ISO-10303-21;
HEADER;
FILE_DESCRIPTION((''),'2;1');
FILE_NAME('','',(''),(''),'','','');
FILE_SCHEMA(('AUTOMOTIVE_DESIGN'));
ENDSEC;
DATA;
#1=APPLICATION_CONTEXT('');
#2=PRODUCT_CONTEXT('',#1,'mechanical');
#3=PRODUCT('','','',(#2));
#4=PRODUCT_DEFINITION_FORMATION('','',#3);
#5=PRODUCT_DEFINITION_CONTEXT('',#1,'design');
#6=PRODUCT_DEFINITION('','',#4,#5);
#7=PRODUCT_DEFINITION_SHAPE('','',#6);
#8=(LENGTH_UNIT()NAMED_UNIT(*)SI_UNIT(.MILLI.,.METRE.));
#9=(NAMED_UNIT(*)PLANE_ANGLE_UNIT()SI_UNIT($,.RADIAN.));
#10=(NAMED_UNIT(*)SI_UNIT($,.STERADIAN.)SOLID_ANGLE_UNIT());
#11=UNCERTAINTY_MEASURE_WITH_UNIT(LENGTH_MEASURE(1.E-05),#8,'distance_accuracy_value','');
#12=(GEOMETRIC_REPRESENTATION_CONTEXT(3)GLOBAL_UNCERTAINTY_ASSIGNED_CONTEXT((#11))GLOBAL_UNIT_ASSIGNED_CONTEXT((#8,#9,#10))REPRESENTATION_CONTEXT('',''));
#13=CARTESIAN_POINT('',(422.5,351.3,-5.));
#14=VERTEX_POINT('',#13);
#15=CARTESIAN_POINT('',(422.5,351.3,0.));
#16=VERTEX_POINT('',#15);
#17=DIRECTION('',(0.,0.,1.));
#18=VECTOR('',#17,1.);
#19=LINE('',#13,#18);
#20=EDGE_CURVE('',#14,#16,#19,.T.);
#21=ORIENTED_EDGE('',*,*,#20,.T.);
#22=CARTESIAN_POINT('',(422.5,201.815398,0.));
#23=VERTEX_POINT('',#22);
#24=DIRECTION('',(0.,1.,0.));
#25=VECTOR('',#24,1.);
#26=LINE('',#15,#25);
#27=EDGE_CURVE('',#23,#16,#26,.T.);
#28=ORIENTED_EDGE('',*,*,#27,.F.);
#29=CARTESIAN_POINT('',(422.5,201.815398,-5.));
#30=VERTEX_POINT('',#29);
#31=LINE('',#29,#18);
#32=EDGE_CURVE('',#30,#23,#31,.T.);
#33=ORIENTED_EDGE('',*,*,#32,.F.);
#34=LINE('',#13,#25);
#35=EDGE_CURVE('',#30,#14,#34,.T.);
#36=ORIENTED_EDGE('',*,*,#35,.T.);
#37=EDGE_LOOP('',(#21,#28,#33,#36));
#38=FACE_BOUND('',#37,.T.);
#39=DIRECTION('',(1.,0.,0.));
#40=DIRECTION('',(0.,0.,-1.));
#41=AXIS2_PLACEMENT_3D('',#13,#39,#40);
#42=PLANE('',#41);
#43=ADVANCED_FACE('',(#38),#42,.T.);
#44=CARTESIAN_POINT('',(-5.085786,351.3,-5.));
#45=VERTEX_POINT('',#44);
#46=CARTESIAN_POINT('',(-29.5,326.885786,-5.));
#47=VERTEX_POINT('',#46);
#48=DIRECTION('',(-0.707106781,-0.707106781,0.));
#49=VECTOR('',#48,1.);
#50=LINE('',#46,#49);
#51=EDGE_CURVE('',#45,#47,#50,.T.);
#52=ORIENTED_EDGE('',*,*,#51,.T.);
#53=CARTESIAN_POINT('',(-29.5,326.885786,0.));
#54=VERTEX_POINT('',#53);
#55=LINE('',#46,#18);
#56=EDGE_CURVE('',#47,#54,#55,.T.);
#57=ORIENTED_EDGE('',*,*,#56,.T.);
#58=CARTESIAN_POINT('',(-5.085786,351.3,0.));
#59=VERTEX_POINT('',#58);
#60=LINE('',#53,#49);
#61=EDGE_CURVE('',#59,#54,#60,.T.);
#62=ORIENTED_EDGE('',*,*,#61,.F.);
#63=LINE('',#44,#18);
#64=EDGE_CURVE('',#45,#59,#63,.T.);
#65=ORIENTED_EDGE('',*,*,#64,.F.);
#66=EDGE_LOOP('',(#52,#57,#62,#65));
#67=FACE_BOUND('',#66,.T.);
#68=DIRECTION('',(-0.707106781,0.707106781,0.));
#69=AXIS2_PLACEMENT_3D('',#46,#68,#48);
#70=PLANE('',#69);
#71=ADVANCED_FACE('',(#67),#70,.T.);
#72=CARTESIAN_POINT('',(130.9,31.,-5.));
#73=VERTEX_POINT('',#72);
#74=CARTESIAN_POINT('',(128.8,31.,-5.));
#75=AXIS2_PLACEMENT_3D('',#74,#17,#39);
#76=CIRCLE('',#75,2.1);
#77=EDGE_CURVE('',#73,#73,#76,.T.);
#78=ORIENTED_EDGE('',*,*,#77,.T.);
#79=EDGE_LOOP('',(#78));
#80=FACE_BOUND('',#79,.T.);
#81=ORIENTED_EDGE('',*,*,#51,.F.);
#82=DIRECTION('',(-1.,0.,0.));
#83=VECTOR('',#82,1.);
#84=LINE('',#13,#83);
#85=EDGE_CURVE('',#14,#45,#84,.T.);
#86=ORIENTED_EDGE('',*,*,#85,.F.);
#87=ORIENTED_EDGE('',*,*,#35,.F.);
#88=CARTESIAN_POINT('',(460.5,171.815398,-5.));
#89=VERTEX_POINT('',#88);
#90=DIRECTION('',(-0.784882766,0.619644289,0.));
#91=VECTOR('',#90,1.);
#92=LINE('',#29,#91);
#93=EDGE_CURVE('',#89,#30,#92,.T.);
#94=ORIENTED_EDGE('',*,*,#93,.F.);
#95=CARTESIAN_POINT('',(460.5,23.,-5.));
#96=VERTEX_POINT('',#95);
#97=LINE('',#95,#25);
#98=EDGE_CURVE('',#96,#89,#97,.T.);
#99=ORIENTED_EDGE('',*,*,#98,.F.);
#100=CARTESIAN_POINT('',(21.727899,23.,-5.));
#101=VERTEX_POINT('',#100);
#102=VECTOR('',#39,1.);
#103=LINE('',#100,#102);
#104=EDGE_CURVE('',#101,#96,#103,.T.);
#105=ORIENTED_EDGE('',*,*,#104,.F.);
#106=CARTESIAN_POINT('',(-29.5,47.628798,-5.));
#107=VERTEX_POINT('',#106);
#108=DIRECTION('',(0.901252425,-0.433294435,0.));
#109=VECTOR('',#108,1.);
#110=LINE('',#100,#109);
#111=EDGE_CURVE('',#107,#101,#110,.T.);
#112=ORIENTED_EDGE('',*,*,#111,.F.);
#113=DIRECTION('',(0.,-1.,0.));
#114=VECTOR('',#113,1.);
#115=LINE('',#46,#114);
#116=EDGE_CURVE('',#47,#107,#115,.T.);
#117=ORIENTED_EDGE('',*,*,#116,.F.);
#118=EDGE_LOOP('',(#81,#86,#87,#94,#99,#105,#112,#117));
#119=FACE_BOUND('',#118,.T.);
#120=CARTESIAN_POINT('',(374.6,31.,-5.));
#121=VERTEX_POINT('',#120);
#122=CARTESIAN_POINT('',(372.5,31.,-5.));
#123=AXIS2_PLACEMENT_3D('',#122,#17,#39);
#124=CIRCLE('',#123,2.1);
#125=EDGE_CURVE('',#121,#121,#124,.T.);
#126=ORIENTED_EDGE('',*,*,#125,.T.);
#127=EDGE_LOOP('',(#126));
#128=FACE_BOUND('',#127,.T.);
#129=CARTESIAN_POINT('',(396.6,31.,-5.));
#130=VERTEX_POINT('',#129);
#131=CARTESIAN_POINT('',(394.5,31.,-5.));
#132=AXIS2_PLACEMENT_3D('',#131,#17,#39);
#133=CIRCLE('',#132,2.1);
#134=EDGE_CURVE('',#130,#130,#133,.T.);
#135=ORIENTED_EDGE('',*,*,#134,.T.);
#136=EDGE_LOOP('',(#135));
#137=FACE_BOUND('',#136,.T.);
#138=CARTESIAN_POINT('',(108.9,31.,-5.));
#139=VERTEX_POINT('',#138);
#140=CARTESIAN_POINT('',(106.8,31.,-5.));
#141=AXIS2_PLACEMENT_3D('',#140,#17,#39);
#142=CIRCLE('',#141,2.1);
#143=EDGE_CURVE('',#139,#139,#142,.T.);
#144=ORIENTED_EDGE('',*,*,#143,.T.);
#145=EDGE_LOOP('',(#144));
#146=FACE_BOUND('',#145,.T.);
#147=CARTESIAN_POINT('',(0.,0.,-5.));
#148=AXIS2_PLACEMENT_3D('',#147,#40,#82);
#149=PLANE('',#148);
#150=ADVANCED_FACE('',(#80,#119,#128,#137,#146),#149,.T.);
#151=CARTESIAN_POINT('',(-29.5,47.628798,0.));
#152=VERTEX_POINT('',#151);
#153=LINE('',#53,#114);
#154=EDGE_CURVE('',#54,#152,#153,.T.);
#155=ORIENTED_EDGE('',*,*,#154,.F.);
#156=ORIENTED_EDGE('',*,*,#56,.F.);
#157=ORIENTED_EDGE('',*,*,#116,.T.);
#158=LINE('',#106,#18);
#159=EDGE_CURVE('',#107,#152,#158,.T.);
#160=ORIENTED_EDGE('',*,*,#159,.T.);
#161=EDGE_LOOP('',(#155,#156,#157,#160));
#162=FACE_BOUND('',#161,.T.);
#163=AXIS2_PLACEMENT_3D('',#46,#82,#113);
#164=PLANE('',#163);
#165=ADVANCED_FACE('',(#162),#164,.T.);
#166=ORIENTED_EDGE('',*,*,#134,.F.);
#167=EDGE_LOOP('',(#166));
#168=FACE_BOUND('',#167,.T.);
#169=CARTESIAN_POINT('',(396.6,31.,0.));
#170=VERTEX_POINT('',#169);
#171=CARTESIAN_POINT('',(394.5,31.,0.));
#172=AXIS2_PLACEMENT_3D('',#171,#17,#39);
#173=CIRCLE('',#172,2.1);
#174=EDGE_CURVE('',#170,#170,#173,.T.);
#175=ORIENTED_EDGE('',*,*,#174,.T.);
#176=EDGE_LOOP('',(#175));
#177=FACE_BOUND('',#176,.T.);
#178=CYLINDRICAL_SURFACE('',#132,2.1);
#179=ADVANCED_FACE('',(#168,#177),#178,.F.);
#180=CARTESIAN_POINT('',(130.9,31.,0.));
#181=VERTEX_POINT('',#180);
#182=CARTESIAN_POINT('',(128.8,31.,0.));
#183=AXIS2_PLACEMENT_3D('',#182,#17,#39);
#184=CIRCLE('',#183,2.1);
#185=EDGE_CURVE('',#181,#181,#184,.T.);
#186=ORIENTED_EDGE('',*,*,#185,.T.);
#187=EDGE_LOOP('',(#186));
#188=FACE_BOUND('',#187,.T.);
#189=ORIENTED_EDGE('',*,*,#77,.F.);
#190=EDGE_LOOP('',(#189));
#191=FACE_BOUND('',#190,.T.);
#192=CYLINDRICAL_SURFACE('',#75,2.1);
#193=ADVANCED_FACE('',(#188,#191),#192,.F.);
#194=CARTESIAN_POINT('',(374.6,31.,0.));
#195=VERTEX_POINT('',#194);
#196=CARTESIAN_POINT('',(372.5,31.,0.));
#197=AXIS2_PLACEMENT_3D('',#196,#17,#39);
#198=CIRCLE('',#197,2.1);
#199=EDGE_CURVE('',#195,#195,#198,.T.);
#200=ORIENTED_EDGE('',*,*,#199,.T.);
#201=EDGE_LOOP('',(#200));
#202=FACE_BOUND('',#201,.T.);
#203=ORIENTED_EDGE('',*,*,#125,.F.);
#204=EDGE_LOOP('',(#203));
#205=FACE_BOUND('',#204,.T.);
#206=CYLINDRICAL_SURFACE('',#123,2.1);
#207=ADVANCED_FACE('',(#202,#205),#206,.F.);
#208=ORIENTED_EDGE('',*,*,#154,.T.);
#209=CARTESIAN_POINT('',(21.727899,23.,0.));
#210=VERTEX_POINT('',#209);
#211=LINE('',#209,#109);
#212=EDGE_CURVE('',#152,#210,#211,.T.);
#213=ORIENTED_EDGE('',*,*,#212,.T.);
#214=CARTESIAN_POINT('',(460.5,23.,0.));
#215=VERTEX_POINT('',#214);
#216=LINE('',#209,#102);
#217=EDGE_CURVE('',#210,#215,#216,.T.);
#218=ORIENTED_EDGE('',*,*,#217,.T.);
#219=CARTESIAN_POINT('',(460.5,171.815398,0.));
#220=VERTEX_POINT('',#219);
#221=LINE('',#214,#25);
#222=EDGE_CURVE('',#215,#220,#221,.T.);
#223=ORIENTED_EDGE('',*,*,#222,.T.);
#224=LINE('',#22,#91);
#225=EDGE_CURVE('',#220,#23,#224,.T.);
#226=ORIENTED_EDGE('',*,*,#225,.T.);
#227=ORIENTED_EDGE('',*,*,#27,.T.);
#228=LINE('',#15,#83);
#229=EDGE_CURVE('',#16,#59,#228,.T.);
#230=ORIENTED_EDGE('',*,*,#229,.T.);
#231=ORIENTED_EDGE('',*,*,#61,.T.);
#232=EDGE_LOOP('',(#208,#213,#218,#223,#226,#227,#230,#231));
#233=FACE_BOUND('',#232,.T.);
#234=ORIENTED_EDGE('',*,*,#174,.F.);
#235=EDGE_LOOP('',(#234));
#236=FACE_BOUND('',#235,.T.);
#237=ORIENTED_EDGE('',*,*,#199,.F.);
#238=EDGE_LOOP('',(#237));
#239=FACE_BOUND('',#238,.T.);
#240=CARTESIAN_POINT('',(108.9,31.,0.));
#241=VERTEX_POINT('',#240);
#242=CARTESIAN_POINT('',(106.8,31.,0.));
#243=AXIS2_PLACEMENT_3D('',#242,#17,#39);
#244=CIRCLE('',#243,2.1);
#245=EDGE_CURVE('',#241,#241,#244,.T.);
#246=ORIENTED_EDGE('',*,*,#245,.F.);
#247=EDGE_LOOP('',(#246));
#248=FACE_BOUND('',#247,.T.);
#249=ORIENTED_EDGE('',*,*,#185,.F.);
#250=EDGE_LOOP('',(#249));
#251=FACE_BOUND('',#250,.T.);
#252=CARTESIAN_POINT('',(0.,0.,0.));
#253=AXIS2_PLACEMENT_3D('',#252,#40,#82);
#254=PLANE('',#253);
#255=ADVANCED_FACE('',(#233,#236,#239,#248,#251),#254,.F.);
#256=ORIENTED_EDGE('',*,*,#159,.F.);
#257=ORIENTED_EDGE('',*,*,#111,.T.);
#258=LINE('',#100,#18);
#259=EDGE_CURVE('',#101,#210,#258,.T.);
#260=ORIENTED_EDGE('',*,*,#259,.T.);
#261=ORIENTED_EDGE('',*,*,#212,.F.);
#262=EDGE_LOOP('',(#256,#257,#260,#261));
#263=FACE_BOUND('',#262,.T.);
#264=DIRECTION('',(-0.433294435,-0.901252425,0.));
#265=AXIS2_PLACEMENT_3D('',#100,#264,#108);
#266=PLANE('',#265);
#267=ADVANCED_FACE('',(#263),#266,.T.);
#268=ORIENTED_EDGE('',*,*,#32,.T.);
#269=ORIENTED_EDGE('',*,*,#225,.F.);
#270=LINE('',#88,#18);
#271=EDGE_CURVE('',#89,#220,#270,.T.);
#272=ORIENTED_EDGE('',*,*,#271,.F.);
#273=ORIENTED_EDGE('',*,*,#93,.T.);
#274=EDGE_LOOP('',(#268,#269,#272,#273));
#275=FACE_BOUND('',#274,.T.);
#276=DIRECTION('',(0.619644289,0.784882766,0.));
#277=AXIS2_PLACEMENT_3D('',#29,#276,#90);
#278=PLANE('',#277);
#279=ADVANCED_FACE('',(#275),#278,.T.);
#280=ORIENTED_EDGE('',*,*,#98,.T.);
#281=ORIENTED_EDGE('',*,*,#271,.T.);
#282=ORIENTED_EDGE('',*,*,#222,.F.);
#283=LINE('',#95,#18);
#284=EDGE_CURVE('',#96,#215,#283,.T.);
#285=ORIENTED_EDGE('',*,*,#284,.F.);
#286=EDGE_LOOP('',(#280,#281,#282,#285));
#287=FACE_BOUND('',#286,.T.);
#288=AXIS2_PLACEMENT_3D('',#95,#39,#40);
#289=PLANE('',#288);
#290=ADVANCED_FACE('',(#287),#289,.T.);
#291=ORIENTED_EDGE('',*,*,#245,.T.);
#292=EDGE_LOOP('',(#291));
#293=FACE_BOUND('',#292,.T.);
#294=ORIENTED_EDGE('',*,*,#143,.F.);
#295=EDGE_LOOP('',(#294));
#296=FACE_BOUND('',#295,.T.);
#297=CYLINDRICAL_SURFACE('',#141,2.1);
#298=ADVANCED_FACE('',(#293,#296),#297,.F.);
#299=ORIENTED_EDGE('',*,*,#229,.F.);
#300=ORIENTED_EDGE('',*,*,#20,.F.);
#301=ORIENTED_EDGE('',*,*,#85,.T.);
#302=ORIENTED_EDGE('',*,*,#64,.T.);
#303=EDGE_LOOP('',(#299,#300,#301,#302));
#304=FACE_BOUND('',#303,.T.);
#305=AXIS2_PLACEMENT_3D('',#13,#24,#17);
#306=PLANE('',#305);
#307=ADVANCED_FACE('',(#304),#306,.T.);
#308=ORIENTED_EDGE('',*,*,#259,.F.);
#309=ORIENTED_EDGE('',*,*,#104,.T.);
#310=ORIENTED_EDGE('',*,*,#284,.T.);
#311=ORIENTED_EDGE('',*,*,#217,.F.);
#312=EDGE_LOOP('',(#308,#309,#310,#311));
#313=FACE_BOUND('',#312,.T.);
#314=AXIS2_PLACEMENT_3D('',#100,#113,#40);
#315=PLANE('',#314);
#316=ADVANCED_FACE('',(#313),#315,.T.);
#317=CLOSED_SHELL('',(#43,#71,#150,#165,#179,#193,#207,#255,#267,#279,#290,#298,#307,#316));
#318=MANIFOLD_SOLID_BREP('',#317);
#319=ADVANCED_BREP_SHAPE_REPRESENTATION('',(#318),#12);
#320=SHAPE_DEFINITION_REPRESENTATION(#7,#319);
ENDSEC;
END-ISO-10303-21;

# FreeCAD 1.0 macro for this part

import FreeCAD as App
import Part
import Sketcher
Q = App.Units.Quantity


def add_polygon(sketch, points):
    """Adds a closed chain of lines whose ends are joined by coincident constraints."""
    first, n = sketch.GeometryCount, len(points)
    for a, b in zip(points, points[1:] + points[:1]):
        sketch.addGeometry(Part.LineSegment(App.Vector(*a, 0), App.Vector(*b, 0)), False)
    for i in range(n):
        sketch.addConstraint(Sketcher.Constraint("Coincident", first + i, 2, first + (i + 1) % n, 1))

doc = App.newDocument("Part")
params = doc.addObject("Spreadsheet::Sheet", "Params")
for row, (alias, value) in enumerate([
    ("pad1_length", "5 mm"),
    ("sketch2_diameter", "4.2 mm"),
], start=1):
    params.set(f"A{row}", alias)
    params.set(f"B{row}", "=" + value)
    params.setAlias(f"B{row}", alias)

body = doc.addObject("PartDesign::Body", "Body")

# Sketch on XY plane
sketch1 = doc.addObject("Sketcher::SketchObject", "Sketch")
body.addObject(sketch1)
sketch1.AttachmentSupport = (doc.XY_Plane, [""])
sketch1.MapMode = "FlatFace"
add_polygon(sketch1, [(-30, 327), (-30, 48), (22, 23), (460, 23), (460, 172), (422, 202), (422, 351), (-5, 351)])  # lines 0-7
sketch1.addConstraint(Sketcher.Constraint("Vertical", 0))
sketch1.addConstraint(Sketcher.Constraint("Horizontal", 2))
sketch1.addConstraint(Sketcher.Constraint("Vertical", 3))
sketch1.addConstraint(Sketcher.Constraint("Vertical", 5))
sketch1.addConstraint(Sketcher.Constraint("Horizontal", 6))
sketch1.addConstraint(Sketcher.Constraint("Angle", 7, Q("-135 deg")))
sketch1.addConstraint(Sketcher.Constraint("DistanceY", -1, 1, 1, 2, Q("23 mm")))
sketch1.addConstraint(Sketcher.Constraint("DistanceX", 0, 2, 2, 2, Q("490 mm")))
sketch1.addConstraint(Sketcher.Constraint("DistanceX", 4, 2, 3, 2, Q("38 mm")))
sketch1.addConstraint(Sketcher.Constraint("DistanceY", 3, 2, 4, 2, Q("30 mm")))
sketch1.addConstraint(Sketcher.Constraint("DistanceX", 0, 2, -1, 1, Q("29.5 mm")))
sketch1.addConstraint(Sketcher.Constraint("DistanceY", -1, 1, 5, 2, Q("351.3 mm")))
sketch1.addConstraint(Sketcher.Constraint("DistanceX", 2, 1, 2, 2, Q("438.772101 mm")))
sketch1.addConstraint(Sketcher.Constraint("DistanceY", 3, 1, 3, 2, Q("148.815398 mm")))
sketch1.addConstraint(Sketcher.Constraint("DistanceY", 0, 2, 0, 1, Q("279.256989 mm")))
sketch1.addConstraint(Sketcher.Constraint("DistanceY", 0, 2, 3, 2, Q("124.1866 mm")))
pad1 = doc.addObject("PartDesign::Pad", "Pad")
body.addObject(pad1)
pad1.Profile = sketch1
pad1.setExpression("Length", "Params.pad1_length")
pad1.Reversed = True

# Sketch on XY plane
sketch2 = doc.addObject("Sketcher::SketchObject", "Sketch001")
body.addObject(sketch2)
sketch2.AttachmentSupport = (doc.XY_Plane, [""])
sketch2.MapMode = "FlatFace"
sketch2.addGeometry(Part.Circle(App.Vector(106.8, 31, 0), App.Vector(0, 0, 1), 2.1), False)
sketch2.addGeometry(Part.Circle(App.Vector(128.8, 31, 0), App.Vector(0, 0, 1), 2.1), False)
sketch2.addGeometry(Part.Circle(App.Vector(372.5, 31, 0), App.Vector(0, 0, 1), 2.1), False)
sketch2.addGeometry(Part.Circle(App.Vector(394.5, 31, 0), App.Vector(0, 0, 1), 2.1), False)
sketch2.addConstraint(Sketcher.Constraint("Equal", 0, 1))
sketch2.addConstraint(Sketcher.Constraint("Equal", 1, 2))
sketch2.addConstraint(Sketcher.Constraint("Equal", 2, 3))
sketch2.addConstraint(Sketcher.Constraint("Horizontal", 0, 3, 1, 3))
sketch2.addConstraint(Sketcher.Constraint("Horizontal", 1, 3, 2, 3))
sketch2.addConstraint(Sketcher.Constraint("Horizontal", 2, 3, 3, 3))
sketch2.addConstraint(Sketcher.Constraint("Diameter", 0, Q("4.2 mm")))
sketch2.addConstraint(Sketcher.Constraint("DistanceY", -1, 1, 0, 3, Q("31 mm")))
sketch2.addConstraint(Sketcher.Constraint("DistanceX", 0, 3, 1, 3, Q("22 mm")))
sketch2.addConstraint(Sketcher.Constraint("DistanceX", 2, 3, 3, 3, Q("22 mm")))
sketch2.addConstraint(Sketcher.Constraint("DistanceX", -1, 1, 0, 3, Q("106.8 mm")))
sketch2.addConstraint(Sketcher.Constraint("DistanceX", -1, 1, 2, 3, Q("372.5 mm")))
sketch2.setExpression("Constraints[6]", "Params.sketch2_diameter")
pocket1 = doc.addObject("PartDesign::Pocket", "Pocket")
body.addObject(pocket1)
pocket1.Profile = sketch2
pocket1.Type = "ThroughAll"

doc.recompute()
